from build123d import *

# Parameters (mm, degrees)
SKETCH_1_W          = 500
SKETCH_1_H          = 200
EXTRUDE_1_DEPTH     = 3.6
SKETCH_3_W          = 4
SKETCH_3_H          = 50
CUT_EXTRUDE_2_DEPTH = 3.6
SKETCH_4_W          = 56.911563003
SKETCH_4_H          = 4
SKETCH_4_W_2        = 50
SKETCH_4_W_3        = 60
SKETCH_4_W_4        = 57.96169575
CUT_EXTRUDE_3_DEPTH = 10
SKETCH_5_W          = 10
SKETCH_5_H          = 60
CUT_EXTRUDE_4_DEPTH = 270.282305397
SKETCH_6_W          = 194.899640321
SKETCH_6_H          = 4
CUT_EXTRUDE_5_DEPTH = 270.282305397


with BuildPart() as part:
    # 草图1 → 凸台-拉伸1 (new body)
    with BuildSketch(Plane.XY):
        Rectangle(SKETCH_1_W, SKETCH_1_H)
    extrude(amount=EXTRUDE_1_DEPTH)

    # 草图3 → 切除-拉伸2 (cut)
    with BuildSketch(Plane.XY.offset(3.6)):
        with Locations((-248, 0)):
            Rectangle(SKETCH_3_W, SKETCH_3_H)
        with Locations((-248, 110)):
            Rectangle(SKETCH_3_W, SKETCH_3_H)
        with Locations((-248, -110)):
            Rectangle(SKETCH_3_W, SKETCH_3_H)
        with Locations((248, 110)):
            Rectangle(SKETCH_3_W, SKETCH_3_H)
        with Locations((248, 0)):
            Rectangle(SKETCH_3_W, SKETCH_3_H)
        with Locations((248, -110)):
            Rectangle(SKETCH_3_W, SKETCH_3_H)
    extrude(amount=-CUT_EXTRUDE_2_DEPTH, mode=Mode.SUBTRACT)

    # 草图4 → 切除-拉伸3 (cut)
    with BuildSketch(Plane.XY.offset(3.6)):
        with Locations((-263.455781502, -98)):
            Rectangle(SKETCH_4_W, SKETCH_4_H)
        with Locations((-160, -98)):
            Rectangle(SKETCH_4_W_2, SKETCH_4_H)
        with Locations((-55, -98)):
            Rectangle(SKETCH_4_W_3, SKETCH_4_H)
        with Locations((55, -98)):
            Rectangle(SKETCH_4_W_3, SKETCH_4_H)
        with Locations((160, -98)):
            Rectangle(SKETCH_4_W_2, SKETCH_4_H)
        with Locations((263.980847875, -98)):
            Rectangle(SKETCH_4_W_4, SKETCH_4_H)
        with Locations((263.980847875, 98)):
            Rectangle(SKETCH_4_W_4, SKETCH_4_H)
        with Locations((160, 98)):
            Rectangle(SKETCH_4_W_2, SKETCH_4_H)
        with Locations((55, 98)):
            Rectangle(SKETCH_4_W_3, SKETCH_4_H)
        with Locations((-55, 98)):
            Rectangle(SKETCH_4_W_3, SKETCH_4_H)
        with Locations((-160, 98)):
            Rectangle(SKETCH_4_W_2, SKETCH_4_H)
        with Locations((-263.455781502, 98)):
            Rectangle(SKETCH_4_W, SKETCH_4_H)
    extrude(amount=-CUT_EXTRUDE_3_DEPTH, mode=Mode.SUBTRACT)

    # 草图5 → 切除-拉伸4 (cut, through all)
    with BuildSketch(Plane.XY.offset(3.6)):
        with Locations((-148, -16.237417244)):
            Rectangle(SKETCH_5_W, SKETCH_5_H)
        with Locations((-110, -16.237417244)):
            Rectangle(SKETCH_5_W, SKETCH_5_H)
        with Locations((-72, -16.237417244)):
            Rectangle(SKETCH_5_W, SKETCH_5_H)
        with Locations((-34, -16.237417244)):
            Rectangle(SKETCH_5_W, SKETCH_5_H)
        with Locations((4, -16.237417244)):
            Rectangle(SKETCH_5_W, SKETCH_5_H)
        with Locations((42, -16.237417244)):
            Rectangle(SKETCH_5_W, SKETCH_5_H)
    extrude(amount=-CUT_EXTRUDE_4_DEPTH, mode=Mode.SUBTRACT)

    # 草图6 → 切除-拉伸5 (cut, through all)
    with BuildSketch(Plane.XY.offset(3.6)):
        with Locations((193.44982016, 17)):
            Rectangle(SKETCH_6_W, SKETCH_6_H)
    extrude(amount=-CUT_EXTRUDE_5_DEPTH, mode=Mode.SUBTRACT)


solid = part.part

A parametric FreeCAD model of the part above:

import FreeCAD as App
import Part
import Sketcher

doc = App.newDocument("Part")
body = doc.addObject("PartDesign::Body", "Body")

# Sketch on XY plane
sketch1 = body.newObject("Sketcher::SketchObject", "Sketch")
sketch1.AttachmentSupport = (doc.getObject("XY_Plane"), [""])
sketch1.MapMode = "FlatFace"
sketch1.addGeometry([
    Part.LineSegment(App.Vector(-250, 100, 0), App.Vector(-250, -100, 0)),
    Part.LineSegment(App.Vector(-250, -100, 0), App.Vector(250, -100, 0)),
    Part.LineSegment(App.Vector(250, -100, 0), App.Vector(250, 100, 0)),
    Part.LineSegment(App.Vector(250, 100, 0), App.Vector(-250, 100, 0)),
], False)
sketch1.addConstraint([
    Sketcher.Constraint("Coincident", 0, 2, 1, 1),
    Sketcher.Constraint("Coincident", 1, 2, 2, 1),
    Sketcher.Constraint("Coincident", 2, 2, 3, 1),
    Sketcher.Constraint("Coincident", 3, 2, 0, 1),
    Sketcher.Constraint("Vertical", 0),
    Sketcher.Constraint("Horizontal", 1),
    Sketcher.Constraint("Vertical", 2),
    Sketcher.Constraint("Horizontal", 3),
    Sketcher.Constraint("Symmetric", 0, 2, 2, 2, -1, 1),
    Sketcher.Constraint("DistanceX", 1, 1, 1, 2, 500.0),
    Sketcher.Constraint("DistanceY", 0, 2, 0, 1, 200.0),
])
pad1 = body.newObject("PartDesign::Pad", "Pad")
pad1.Profile = sketch1
pad1.Length = 3.6

# Sketch on XY plane
sketch2 = body.newObject("Sketcher::SketchObject", "Sketch001")
sketch2.AttachmentSupport = (doc.getObject("XY_Plane"), [""])
sketch2.MapMode = "FlatFace"
sketch2.AttachmentOffset = App.Placement(App.Vector(0, 0, 3.6), App.Rotation())
sketch2.addGeometry([
    Part.LineSegment(App.Vector(-250, 25, 0), App.Vector(-250, -25, 0)),  # 0
    Part.LineSegment(App.Vector(-250, -25, 0), App.Vector(-246, -25, 0)),  # 1
    Part.LineSegment(App.Vector(-246, -25, 0), App.Vector(-246, 25, 0)),  # 2
    Part.LineSegment(App.Vector(-246, 25, 0), App.Vector(-250, 25, 0)),  # 3
    Part.LineSegment(App.Vector(-250, 135, 0), App.Vector(-250, 85, 0)),  # 4
    Part.LineSegment(App.Vector(-250, 85, 0), App.Vector(-246, 85, 0)),  # 5
    Part.LineSegment(App.Vector(-246, 85, 0), App.Vector(-246, 135, 0)),  # 6
    Part.LineSegment(App.Vector(-246, 135, 0), App.Vector(-250, 135, 0)),  # 7
    Part.LineSegment(App.Vector(-250, -85, 0), App.Vector(-250, -135, 0)),  # 8
    Part.LineSegment(App.Vector(-250, -135, 0), App.Vector(-246, -135, 0)),  # 9
    Part.LineSegment(App.Vector(-246, -135, 0), App.Vector(-246, -85, 0)),  # 10
    Part.LineSegment(App.Vector(-246, -85, 0), App.Vector(-250, -85, 0)),  # 11
    Part.LineSegment(App.Vector(246, 135, 0), App.Vector(246, 85, 0)),  # 12
    Part.LineSegment(App.Vector(246, 85, 0), App.Vector(250, 85, 0)),  # 13
    Part.LineSegment(App.Vector(250, 85, 0), App.Vector(250, 135, 0)),  # 14
    Part.LineSegment(App.Vector(250, 135, 0), App.Vector(246, 135, 0)),  # 15
    Part.LineSegment(App.Vector(246, 25, 0), App.Vector(246, -25, 0)),  # 16
    Part.LineSegment(App.Vector(246, -25, 0), App.Vector(250, -25, 0)),  # 17
    Part.LineSegment(App.Vector(250, -25, 0), App.Vector(250, 25, 0)),  # 18
    Part.LineSegment(App.Vector(250, 25, 0), App.Vector(246, 25, 0)),  # 19
    Part.LineSegment(App.Vector(246, -85, 0), App.Vector(246, -135, 0)),  # 20
    Part.LineSegment(App.Vector(246, -135, 0), App.Vector(250, -135, 0)),  # 21
    Part.LineSegment(App.Vector(250, -135, 0), App.Vector(250, -85, 0)),  # 22
    Part.LineSegment(App.Vector(250, -85, 0), App.Vector(246, -85, 0)),  # 23
], False)
sketch2.addConstraint([
    Sketcher.Constraint("Coincident", 0, 2, 1, 1),
    Sketcher.Constraint("Coincident", 1, 2, 2, 1),
    Sketcher.Constraint("Coincident", 2, 2, 3, 1),
    Sketcher.Constraint("Coincident", 3, 2, 0, 1),
    Sketcher.Constraint("Coincident", 4, 2, 5, 1),
    Sketcher.Constraint("Coincident", 5, 2, 6, 1),
    Sketcher.Constraint("Coincident", 6, 2, 7, 1),
    Sketcher.Constraint("Coincident", 7, 2, 4, 1),
    Sketcher.Constraint("Coincident", 8, 2, 9, 1),
    Sketcher.Constraint("Coincident", 9, 2, 10, 1),
    Sketcher.Constraint("Coincident", 10, 2, 11, 1),
    Sketcher.Constraint("Coincident", 11, 2, 8, 1),
    Sketcher.Constraint("Coincident", 12, 2, 13, 1),
    Sketcher.Constraint("Coincident", 13, 2, 14, 1),
    Sketcher.Constraint("Coincident", 14, 2, 15, 1),
    Sketcher.Constraint("Coincident", 15, 2, 12, 1),
    Sketcher.Constraint("Coincident", 16, 2, 17, 1),
    Sketcher.Constraint("Coincident", 17, 2, 18, 1),
    Sketcher.Constraint("Coincident", 18, 2, 19, 1),
    Sketcher.Constraint("Coincident", 19, 2, 16, 1),
    Sketcher.Constraint("Coincident", 20, 2, 21, 1),
    Sketcher.Constraint("Coincident", 21, 2, 22, 1),
    Sketcher.Constraint("Coincident", 22, 2, 23, 1),
    Sketcher.Constraint("Coincident", 23, 2, 20, 1),
    Sketcher.Constraint("Vertical", 0),
    Sketcher.Constraint("Horizontal", 1),
    Sketcher.Constraint("Vertical", 2),
    Sketcher.Constraint("Horizontal", 3),
    Sketcher.Constraint("Vertical", 4),
    Sketcher.Constraint("Horizontal", 5),
    Sketcher.Constraint("Vertical", 6),
    Sketcher.Constraint("Horizontal", 7),
    Sketcher.Constraint("Vertical", 8),
    Sketcher.Constraint("Horizontal", 9),
    Sketcher.Constraint("Vertical", 10),
    Sketcher.Constraint("Horizontal", 11),
    Sketcher.Constraint("Vertical", 12),
    Sketcher.Constraint("Horizontal", 13),
    Sketcher.Constraint("Vertical", 14),
    Sketcher.Constraint("Horizontal", 15),
    Sketcher.Constraint("Vertical", 16),
    Sketcher.Constraint("Horizontal", 17),
    Sketcher.Constraint("Vertical", 18),
    Sketcher.Constraint("Horizontal", 19),
    Sketcher.Constraint("Vertical", 20),
    Sketcher.Constraint("Horizontal", 21),
    Sketcher.Constraint("Vertical", 22),
    Sketcher.Constraint("Horizontal", 23),
    Sketcher.Constraint("Symmetric", 10, 2, 12, 2, -1, 1),
    Sketcher.Constraint("Symmetric", 8, 2, 14, 2, -1, 1),
    Sketcher.Constraint("Symmetric", 2, 2, 16, 2, -1, 1),
    Sketcher.Constraint("Symmetric", 0, 2, 18, 2, -1, 1),
    Sketcher.Constraint("Symmetric", 6, 2, 20, 2, -1, 1),
    Sketcher.Constraint("Symmetric", 4, 2, 22, 2, -1, 1),
    Sketcher.Constraint("Symmetric", 5, 2, 12, 2, -2),
    Sketcher.Constraint("Symmetric", 7, 2, 14, 2, -2),
    Sketcher.Constraint("Horizontal", 1, 2, 16, 2),
    Sketcher.Constraint("Vertical", 3, 2, 4, 2),
    Sketcher.Constraint("Vertical", 2, 2, 5, 2),
    Sketcher.Constraint("Equal", 2, 4),
    Sketcher.Constraint("DistanceX", 1, 1, 1, 2, 4.0),
    Sketcher.Constraint("DistanceY", 0, 2, 0, 1, 50.0),
    Sketcher.Constraint("DistanceX", 0, 2, -1, 1, 250.0),
    Sketcher.Constraint("DistanceY", -1, 1, 4, 2, 85.0),
])
pocket1 = body.newObject("PartDesign::Pocket", "Pocket")
pocket1.Profile = sketch2
pocket1.Length = 3.6

# Sketch on XY plane
sketch3 = body.newObject("Sketcher::SketchObject", "Sketch002")
sketch3.AttachmentSupport = (doc.getObject("XY_Plane"), [""])
sketch3.MapMode = "FlatFace"
sketch3.AttachmentOffset = App.Placement(App.Vector(0, 0, 3.6), App.Rotation())
sketch3.addGeometry([
    Part.LineSegment(App.Vector(-291.911563, -96, 0), App.Vector(-291.911563, -100, 0)),  # 0
    Part.LineSegment(App.Vector(-291.911563, -100, 0), App.Vector(-235, -100, 0)),  # 1
    Part.LineSegment(App.Vector(-235, -100, 0), App.Vector(-235, -96, 0)),  # 2
    Part.LineSegment(App.Vector(-235, -96, 0), App.Vector(-291.911563, -96, 0)),  # 3
    Part.LineSegment(App.Vector(-185, -96, 0), App.Vector(-185, -100, 0)),  # 4
    Part.LineSegment(App.Vector(-185, -100, 0), App.Vector(-135, -100, 0)),  # 5
    Part.LineSegment(App.Vector(-135, -100, 0), App.Vector(-135, -96, 0)),  # 6
    Part.LineSegment(App.Vector(-135, -96, 0), App.Vector(-185, -96, 0)),  # 7
    Part.LineSegment(App.Vector(-85, -96, 0), App.Vector(-85, -100, 0)),  # 8
    Part.LineSegment(App.Vector(-85, -100, 0), App.Vector(-25, -100, 0)),  # 9
    Part.LineSegment(App.Vector(-25, -100, 0), App.Vector(-25, -96, 0)),  # 10
    Part.LineSegment(App.Vector(-25, -96, 0), App.Vector(-85, -96, 0)),  # 11
    Part.LineSegment(App.Vector(25, -96, 0), App.Vector(25, -100, 0)),  # 12
    Part.LineSegment(App.Vector(25, -100, 0), App.Vector(85, -100, 0)),  # 13
    Part.LineSegment(App.Vector(85, -100, 0), App.Vector(85, -96, 0)),  # 14
    Part.LineSegment(App.Vector(85, -96, 0), App.Vector(25, -96, 0)),  # 15
    Part.LineSegment(App.Vector(135, -96, 0), App.Vector(135, -100, 0)),  # 16
    Part.LineSegment(App.Vector(135, -100, 0), App.Vector(185, -100, 0)),  # 17
    Part.LineSegment(App.Vector(185, -100, 0), App.Vector(185, -96, 0)),  # 18
    Part.LineSegment(App.Vector(185, -96, 0), App.Vector(135, -96, 0)),  # 19
    Part.LineSegment(App.Vector(235, -96, 0), App.Vector(235, -100, 0)),  # 20
    Part.LineSegment(App.Vector(235, -100, 0), App.Vector(292.961696, -100, 0)),  # 21
    Part.LineSegment(App.Vector(292.961696, -100, 0), App.Vector(292.961696, -96, 0)),  # 22
    Part.LineSegment(App.Vector(292.961696, -96, 0), App.Vector(235, -96, 0)),  # 23
    Part.LineSegment(App.Vector(235, 100, 0), App.Vector(235, 96, 0)),  # 24
    Part.LineSegment(App.Vector(235, 96, 0), App.Vector(292.961696, 96, 0)),  # 25
    Part.LineSegment(App.Vector(292.961696, 96, 0), App.Vector(292.961696, 100, 0)),  # 26
    Part.LineSegment(App.Vector(292.961696, 100, 0), App.Vector(235, 100, 0)),  # 27
    Part.LineSegment(App.Vector(135, 100, 0), App.Vector(135, 96, 0)),  # 28
    Part.LineSegment(App.Vector(135, 96, 0), App.Vector(185, 96, 0)),  # 29
    Part.LineSegment(App.Vector(185, 96, 0), App.Vector(185, 100, 0)),  # 30
    Part.LineSegment(App.Vector(185, 100, 0), App.Vector(135, 100, 0)),  # 31
    Part.LineSegment(App.Vector(25, 100, 0), App.Vector(25, 96, 0)),  # 32
    Part.LineSegment(App.Vector(25, 96, 0), App.Vector(85, 96, 0)),  # 33
    Part.LineSegment(App.Vector(85, 96, 0), App.Vector(85, 100, 0)),  # 34
    Part.LineSegment(App.Vector(85, 100, 0), App.Vector(25, 100, 0)),  # 35
    Part.LineSegment(App.Vector(-85, 100, 0), App.Vector(-85, 96, 0)),  # 36
    Part.LineSegment(App.Vector(-85, 96, 0), App.Vector(-25, 96, 0)),  # 37
    Part.LineSegment(App.Vector(-25, 96, 0), App.Vector(-25, 100, 0)),  # 38
    Part.LineSegment(App.Vector(-25, 100, 0), App.Vector(-85, 100, 0)),  # 39
    Part.LineSegment(App.Vector(-185, 100, 0), App.Vector(-185, 96, 0)),  # 40
    Part.LineSegment(App.Vector(-185, 96, 0), App.Vector(-135, 96, 0)),  # 41
    Part.LineSegment(App.Vector(-135, 96, 0), App.Vector(-135, 100, 0)),  # 42
    Part.LineSegment(App.Vector(-135, 100, 0), App.Vector(-185, 100, 0)),  # 43
    Part.LineSegment(App.Vector(-291.911563, 100, 0), App.Vector(-291.911563, 96, 0)),  # 44
    Part.LineSegment(App.Vector(-291.911563, 96, 0), App.Vector(-235, 96, 0)),  # 45
    Part.LineSegment(App.Vector(-235, 96, 0), App.Vector(-235, 100, 0)),  # 46
    Part.LineSegment(App.Vector(-235, 100, 0), App.Vector(-291.911563, 100, 0)),  # 47
], False)
sketch3.addConstraint([
    Sketcher.Constraint("Coincident", 0, 2, 1, 1),
    Sketcher.Constraint("Coincident", 1, 2, 2, 1),
    Sketcher.Constraint("Coincident", 2, 2, 3, 1),
    Sketcher.Constraint("Coincident", 3, 2, 0, 1),
    Sketcher.Constraint("Coincident", 4, 2, 5, 1),
    Sketcher.Constraint("Coincident", 5, 2, 6, 1),
    Sketcher.Constraint("Coincident", 6, 2, 7, 1),
    Sketcher.Constraint("Coincident", 7, 2, 4, 1),
    Sketcher.Constraint("Coincident", 8, 2, 9, 1),
    Sketcher.Constraint("Coincident", 9, 2, 10, 1),
    Sketcher.Constraint("Coincident", 10, 2, 11, 1),
    Sketcher.Constraint("Coincident", 11, 2, 8, 1),
    Sketcher.Constraint("Coincident", 12, 2, 13, 1),
    Sketcher.Constraint("Coincident", 13, 2, 14, 1),
    Sketcher.Constraint("Coincident", 14, 2, 15, 1),
    Sketcher.Constraint("Coincident", 15, 2, 12, 1),
    Sketcher.Constraint("Coincident", 16, 2, 17, 1),
    Sketcher.Constraint("Coincident", 17, 2, 18, 1),
    Sketcher.Constraint("Coincident", 18, 2, 19, 1),
    Sketcher.Constraint("Coincident", 19, 2, 16, 1),
    Sketcher.Constraint("Coincident", 20, 2, 21, 1),
    Sketcher.Constraint("Coincident", 21, 2, 22, 1),
    Sketcher.Constraint("Coincident", 22, 2, 23, 1),
    Sketcher.Constraint("Coincident", 23, 2, 20, 1),
    Sketcher.Constraint("Coincident", 24, 2, 25, 1),
    Sketcher.Constraint("Coincident", 25, 2, 26, 1),
    Sketcher.Constraint("Coincident", 26, 2, 27, 1),
    Sketcher.Constraint("Coincident", 27, 2, 24, 1),
    Sketcher.Constraint("Coincident", 28, 2, 29, 1),
    Sketcher.Constraint("Coincident", 29, 2, 30, 1),
    Sketcher.Constraint("Coincident", 30, 2, 31, 1),
    Sketcher.Constraint("Coincident", 31, 2, 28, 1),
    Sketcher.Constraint("Coincident", 32, 2, 33, 1),
    Sketcher.Constraint("Coincident", 33, 2, 34, 1),
    Sketcher.Constraint("Coincident", 34, 2, 35, 1),
    Sketcher.Constraint("Coincident", 35, 2, 32, 1),
    Sketcher.Constraint("Coincident", 36, 2, 37, 1),
    Sketcher.Constraint("Coincident", 37, 2, 38, 1),
    Sketcher.Constraint("Coincident", 38, 2, 39, 1),
    Sketcher.Constraint("Coincident", 39, 2, 36, 1),
    Sketcher.Constraint("Coincident", 40, 2, 41, 1),
    Sketcher.Constraint("Coincident", 41, 2, 42, 1),
    Sketcher.Constraint("Coincident", 42, 2, 43, 1),
    Sketcher.Constraint("Coincident", 43, 2, 40, 1),
    Sketcher.Constraint("Coincident", 44, 2, 45, 1),
    Sketcher.Constraint("Coincident", 45, 2, 46, 1),
    Sketcher.Constraint("Coincident", 46, 2, 47, 1),
    Sketcher.Constraint("Coincident", 47, 2, 44, 1),
    Sketcher.Constraint("Vertical", 0),
    Sketcher.Constraint("Horizontal", 1),
    Sketcher.Constraint("Vertical", 2),
    Sketcher.Constraint("Horizontal", 3),
    Sketcher.Constraint("Vertical", 4),
    Sketcher.Constraint("Horizontal", 5),
    Sketcher.Constraint("Vertical", 6),
    Sketcher.Constraint("Horizontal", 7),
    Sketcher.Constraint("Vertical", 8),
    Sketcher.Constraint("Horizontal", 9),
    Sketcher.Constraint("Vertical", 10),
    Sketcher.Constraint("Horizontal", 11),
    Sketcher.Constraint("Vertical", 12),
    Sketcher.Constraint("Horizontal", 13),
    Sketcher.Constraint("Vertical", 14),
    Sketcher.Constraint("Horizontal", 15),
    Sketcher.Constraint("Vertical", 16),
    Sketcher.Constraint("Horizontal", 17),
    Sketcher.Constraint("Vertical", 18),
    Sketcher.Constraint("Horizontal", 19),
    Sketcher.Constraint("Vertical", 20),
    Sketcher.Constraint("Horizontal", 21),
    Sketcher.Constraint("Vertical", 22),
    Sketcher.Constraint("Horizontal", 23),
    Sketcher.Constraint("Vertical", 24),
    Sketcher.Constraint("Horizontal", 25),
    Sketcher.Constraint("Vertical", 26),
    Sketcher.Constraint("Horizontal", 27),
    Sketcher.Constraint("Vertical", 28),
    Sketcher.Constraint("Horizontal", 29),
    Sketcher.Constraint("Vertical", 30),
    Sketcher.Constraint("Horizontal", 31),
    Sketcher.Constraint("Vertical", 32),
    Sketcher.Constraint("Horizontal", 33),
    Sketcher.Constraint("Vertical", 34),
    Sketcher.Constraint("Horizontal", 35),
    Sketcher.Constraint("Vertical", 36),
    Sketcher.Constraint("Horizontal", 37),
    Sketcher.Constraint("Vertical", 38),
    Sketcher.Constraint("Horizontal", 39),
    Sketcher.Constraint("Vertical", 40),
    Sketcher.Constraint("Horizontal", 41),
    Sketcher.Constraint("Vertical", 42),
    Sketcher.Constraint("Horizontal", 43),
    Sketcher.Constraint("Vertical", 44),
    Sketcher.Constraint("Horizontal", 45),
    Sketcher.Constraint("Vertical", 46),
    Sketcher.Constraint("Horizontal", 47),
    Sketcher.Constraint("Symmetric", 2, 2, 24, 2, -1, 1),
    Sketcher.Constraint("Symmetric", 6, 2, 28, 2, -1, 1),
    Sketcher.Constraint("Symmetric", 4, 2, 30, 2, -1, 1),
    Sketcher.Constraint("Symmetric", 10, 2, 32, 2, -1, 1),
    Sketcher.Constraint("Symmetric", 8, 2, 34, 2, -1, 1),
    Sketcher.Constraint("Symmetric", 14, 2, 36, 2, -1, 1),
    Sketcher.Constraint("Symmetric", 12, 2, 38, 2, -1, 1),
    Sketcher.Constraint("Symmetric", 18, 2, 40, 2, -1, 1),
    Sketcher.Constraint("Symmetric", 16, 2, 42, 2, -1, 1),
    Sketcher.Constraint("Symmetric", 23, 2, 45, 2, -1, 1),
    Sketcher.Constraint("Symmetric", 9, 2, 12, 2, -2),
    Sketcher.Constraint("Symmetric", 11, 2, 14, 2, -2),
    Sketcher.Constraint("Symmetric", 5, 2, 16, 2, -2),
    Sketcher.Constraint("Symmetric", 7, 2, 18, 2, -2),
    Sketcher.Constraint("Symmetric", 1, 2, 20, 2, -2),
    Sketcher.Constraint("Symmetric", 22, 2, 25, 2, -1),
    Sketcher.Constraint("Symmetric", 0, 2, 47, 2, -1),
    Sketcher.Constraint("Horizontal", 1, 2, 4, 2),
    Sketcher.Constraint("Horizontal", 3, 2, 6, 2),
    Sketcher.Constraint("Horizontal", 5, 2, 8, 2),
    Sketcher.Constraint("Horizontal", 7, 2, 10, 2),
    Sketcher.Constraint("Horizontal", 27, 2, 30, 2),
    Sketcher.Constraint("DistanceX", 5, 1, 5, 2, 50.0),
    Sketcher.Constraint("DistanceX", 9, 1, 9, 2, 60.0),
    Sketcher.Constraint("DistanceY", 0, 2, 0, 1, 4.0),
    Sketcher.Constraint("DistanceY", 0, 2, -1, 1, 100.0),
    Sketcher.Constraint("DistanceX", 1, 2, -1, 1, 235.0),
    Sketcher.Constraint("DistanceX", 4, 2, -1, 1, 185.0),
    Sketcher.Constraint("DistanceX", 8, 2, -1, 1, 85.0),
    Sketcher.Constraint("DistanceX", 1, 1, 1, 2, 56.911563),
    Sketcher.Constraint("DistanceX", 21, 1, 21, 2, 57.961696),
])
pocket2 = body.newObject("PartDesign::Pocket", "Pocket001")
pocket2.Profile = sketch3
pocket2.Length = 10

# Sketch on XY plane
sketch4 = body.newObject("Sketcher::SketchObject", "Sketch003")
sketch4.AttachmentSupport = (doc.getObject("XY_Plane"), [""])
sketch4.MapMode = "FlatFace"
sketch4.AttachmentOffset = App.Placement(App.Vector(0, 0, 3.6), App.Rotation())
sketch4.addGeometry([
    Part.LineSegment(App.Vector(-153, 13.762583, 0), App.Vector(-153, -46.237417, 0)),  # 0
    Part.LineSegment(App.Vector(-153, -46.237417, 0), App.Vector(-143, -46.237417, 0)),  # 1
    Part.LineSegment(App.Vector(-143, -46.237417, 0), App.Vector(-143, 13.762583, 0)),  # 2
    Part.LineSegment(App.Vector(-143, 13.762583, 0), App.Vector(-153, 13.762583, 0)),  # 3
    Part.LineSegment(App.Vector(-115, 13.762583, 0), App.Vector(-115, -46.237417, 0)),  # 4
    Part.LineSegment(App.Vector(-115, -46.237417, 0), App.Vector(-105, -46.237417, 0)),  # 5
    Part.LineSegment(App.Vector(-105, -46.237417, 0), App.Vector(-105, 13.762583, 0)),  # 6
    Part.LineSegment(App.Vector(-105, 13.762583, 0), App.Vector(-115, 13.762583, 0)),  # 7
    Part.LineSegment(App.Vector(-77, 13.762583, 0), App.Vector(-77, -46.237417, 0)),  # 8
    Part.LineSegment(App.Vector(-77, -46.237417, 0), App.Vector(-67, -46.237417, 0)),  # 9
    Part.LineSegment(App.Vector(-67, -46.237417, 0), App.Vector(-67, 13.762583, 0)),  # 10
    Part.LineSegment(App.Vector(-67, 13.762583, 0), App.Vector(-77, 13.762583, 0)),  # 11
    Part.LineSegment(App.Vector(-39, 13.762583, 0), App.Vector(-39, -46.237417, 0)),  # 12
    Part.LineSegment(App.Vector(-39, -46.237417, 0), App.Vector(-29, -46.237417, 0)),  # 13
    Part.LineSegment(App.Vector(-29, -46.237417, 0), App.Vector(-29, 13.762583, 0)),  # 14
    Part.LineSegment(App.Vector(-29, 13.762583, 0), App.Vector(-39, 13.762583, 0)),  # 15
    Part.LineSegment(App.Vector(-1, 13.762583, 0), App.Vector(-1, -46.237417, 0)),  # 16
    Part.LineSegment(App.Vector(-1, -46.237417, 0), App.Vector(9, -46.237417, 0)),  # 17
    Part.LineSegment(App.Vector(9, -46.237417, 0), App.Vector(9, 13.762583, 0)),  # 18
    Part.LineSegment(App.Vector(9, 13.762583, 0), App.Vector(-1, 13.762583, 0)),  # 19
    Part.LineSegment(App.Vector(37, 13.762583, 0), App.Vector(37, -46.237417, 0)),  # 20
    Part.LineSegment(App.Vector(37, -46.237417, 0), App.Vector(47, -46.237417, 0)),  # 21
    Part.LineSegment(App.Vector(47, -46.237417, 0), App.Vector(47, 13.762583, 0)),  # 22
    Part.LineSegment(App.Vector(47, 13.762583, 0), App.Vector(37, 13.762583, 0)),  # 23
], False)
sketch4.addConstraint([
    Sketcher.Constraint("Coincident", 0, 2, 1, 1),
    Sketcher.Constraint("Coincident", 1, 2, 2, 1),
    Sketcher.Constraint("Coincident", 2, 2, 3, 1),
    Sketcher.Constraint("Coincident", 3, 2, 0, 1),
    Sketcher.Constraint("Coincident", 4, 2, 5, 1),
    Sketcher.Constraint("Coincident", 5, 2, 6, 1),
    Sketcher.Constraint("Coincident", 6, 2, 7, 1),
    Sketcher.Constraint("Coincident", 7, 2, 4, 1),
    Sketcher.Constraint("Coincident", 8, 2, 9, 1),
    Sketcher.Constraint("Coincident", 9, 2, 10, 1),
    Sketcher.Constraint("Coincident", 10, 2, 11, 1),
    Sketcher.Constraint("Coincident", 11, 2, 8, 1),
    Sketcher.Constraint("Coincident", 12, 2, 13, 1),
    Sketcher.Constraint("Coincident", 13, 2, 14, 1),
    Sketcher.Constraint("Coincident", 14, 2, 15, 1),
    Sketcher.Constraint("Coincident", 15, 2, 12, 1),
    Sketcher.Constraint("Coincident", 16, 2, 17, 1),
    Sketcher.Constraint("Coincident", 17, 2, 18, 1),
    Sketcher.Constraint("Coincident", 18, 2, 19, 1),
    Sketcher.Constraint("Coincident", 19, 2, 16, 1),
    Sketcher.Constraint("Coincident", 20, 2, 21, 1),
    Sketcher.Constraint("Coincident", 21, 2, 22, 1),
    Sketcher.Constraint("Coincident", 22, 2, 23, 1),
    Sketcher.Constraint("Coincident", 23, 2, 20, 1),
    Sketcher.Constraint("Vertical", 0),
    Sketcher.Constraint("Horizontal", 1),
    Sketcher.Constraint("Vertical", 2),
    Sketcher.Constraint("Horizontal", 3),
    Sketcher.Constraint("Vertical", 4),
    Sketcher.Constraint("Horizontal", 5),
    Sketcher.Constraint("Vertical", 6),
    Sketcher.Constraint("Horizontal", 7),
    Sketcher.Constraint("Vertical", 8),
    Sketcher.Constraint("Horizontal", 9),
    Sketcher.Constraint("Vertical", 10),
    Sketcher.Constraint("Horizontal", 11),
    Sketcher.Constraint("Vertical", 12),
    Sketcher.Constraint("Horizontal", 13),
    Sketcher.Constraint("Vertical", 14),
    Sketcher.Constraint("Horizontal", 15),
    Sketcher.Constraint("Vertical", 16),
    Sketcher.Constraint("Horizontal", 17),
    Sketcher.Constraint("Vertical", 18),
    Sketcher.Constraint("Horizontal", 19),
    Sketcher.Constraint("Vertical", 20),
    Sketcher.Constraint("Horizontal", 21),
    Sketcher.Constraint("Vertical", 22),
    Sketcher.Constraint("Horizontal", 23),
    Sketcher.Constraint("Horizontal", 1, 2, 4, 2),
    Sketcher.Constraint("Horizontal", 3, 2, 6, 2),
    Sketcher.Constraint("Horizontal", 5, 2, 8, 2),
    Sketcher.Constraint("Horizontal", 7, 2, 10, 2),
    Sketcher.Constraint("Horizontal", 9, 2, 12, 2),
    Sketcher.Constraint("Horizontal", 11, 2, 14, 2),
    Sketcher.Constraint("Horizontal", 13, 2, 16, 2),
    Sketcher.Constraint("Horizontal", 15, 2, 18, 2),
    Sketcher.Constraint("Horizontal", 17, 2, 20, 2),
    Sketcher.Constraint("Horizontal", 19, 2, 22, 2),
    Sketcher.Constraint("Equal", 3, 5),
    Sketcher.Constraint("Equal", 7, 9),
    Sketcher.Constraint("Equal", 11, 13),
    Sketcher.Constraint("Equal", 15, 17),
    Sketcher.Constraint("Equal", 19, 21),
    Sketcher.Constraint("DistanceX", 1, 1, 1, 2, 10.0),
    Sketcher.Constraint("DistanceY", 0, 2, 0, 1, 60.0),
    Sketcher.Constraint("DistanceX", 0, 2, -1, 1, 153.0),
    Sketcher.Constraint("DistanceX", 4, 2, -1, 1, 115.0),
    Sketcher.Constraint("DistanceX", 8, 2, -1, 1, 77.0),
    Sketcher.Constraint("DistanceX", 12, 2, -1, 1, 39.0),
    Sketcher.Constraint("DistanceX", 16, 2, -1, 1, 1.0),
    Sketcher.Constraint("DistanceX", -1, 1, 20, 2, 37.0),
    Sketcher.Constraint("DistanceY", 0, 2, -1, 1, 46.237417),
])
pocket3 = body.newObject("PartDesign::Pocket", "Pocket002")
pocket3.Profile = sketch4
pocket3.Type = "ThroughAll"

# Sketch on XY plane
sketch5 = body.newObject("Sketcher::SketchObject", "Sketch004")
sketch5.AttachmentSupport = (doc.getObject("XY_Plane"), [""])
sketch5.MapMode = "FlatFace"
sketch5.AttachmentOffset = App.Placement(App.Vector(0, 0, 3.6), App.Rotation())
sketch5.addGeometry([
    Part.LineSegment(App.Vector(96, 19, 0), App.Vector(96, 15, 0)),
    Part.LineSegment(App.Vector(96, 15, 0), App.Vector(290.89964, 15, 0)),
    Part.LineSegment(App.Vector(290.89964, 15, 0), App.Vector(290.89964, 19, 0)),
    Part.LineSegment(App.Vector(290.89964, 19, 0), App.Vector(96, 19, 0)),
], False)
sketch5.addConstraint([
    Sketcher.Constraint("Coincident", 0, 2, 1, 1),
    Sketcher.Constraint("Coincident", 1, 2, 2, 1),
    Sketcher.Constraint("Coincident", 2, 2, 3, 1),
    Sketcher.Constraint("Coincident", 3, 2, 0, 1),
    Sketcher.Constraint("Vertical", 0),
    Sketcher.Constraint("Horizontal", 1),
    Sketcher.Constraint("Vertical", 2),
    Sketcher.Constraint("Horizontal", 3),
    Sketcher.Constraint("DistanceY", 0, 2, 0, 1, 4.0),
    Sketcher.Constraint("DistanceX", -1, 1, 0, 2, 96.0),
    Sketcher.Constraint("DistanceY", -1, 1, 0, 2, 15.0),
    Sketcher.Constraint("DistanceX", 1, 1, 1, 2, 194.89964),
])
pocket4 = body.newObject("PartDesign::Pocket", "Pocket003")
pocket4.Profile = sketch5
pocket4.Type = "ThroughAll"

doc.recompute()
